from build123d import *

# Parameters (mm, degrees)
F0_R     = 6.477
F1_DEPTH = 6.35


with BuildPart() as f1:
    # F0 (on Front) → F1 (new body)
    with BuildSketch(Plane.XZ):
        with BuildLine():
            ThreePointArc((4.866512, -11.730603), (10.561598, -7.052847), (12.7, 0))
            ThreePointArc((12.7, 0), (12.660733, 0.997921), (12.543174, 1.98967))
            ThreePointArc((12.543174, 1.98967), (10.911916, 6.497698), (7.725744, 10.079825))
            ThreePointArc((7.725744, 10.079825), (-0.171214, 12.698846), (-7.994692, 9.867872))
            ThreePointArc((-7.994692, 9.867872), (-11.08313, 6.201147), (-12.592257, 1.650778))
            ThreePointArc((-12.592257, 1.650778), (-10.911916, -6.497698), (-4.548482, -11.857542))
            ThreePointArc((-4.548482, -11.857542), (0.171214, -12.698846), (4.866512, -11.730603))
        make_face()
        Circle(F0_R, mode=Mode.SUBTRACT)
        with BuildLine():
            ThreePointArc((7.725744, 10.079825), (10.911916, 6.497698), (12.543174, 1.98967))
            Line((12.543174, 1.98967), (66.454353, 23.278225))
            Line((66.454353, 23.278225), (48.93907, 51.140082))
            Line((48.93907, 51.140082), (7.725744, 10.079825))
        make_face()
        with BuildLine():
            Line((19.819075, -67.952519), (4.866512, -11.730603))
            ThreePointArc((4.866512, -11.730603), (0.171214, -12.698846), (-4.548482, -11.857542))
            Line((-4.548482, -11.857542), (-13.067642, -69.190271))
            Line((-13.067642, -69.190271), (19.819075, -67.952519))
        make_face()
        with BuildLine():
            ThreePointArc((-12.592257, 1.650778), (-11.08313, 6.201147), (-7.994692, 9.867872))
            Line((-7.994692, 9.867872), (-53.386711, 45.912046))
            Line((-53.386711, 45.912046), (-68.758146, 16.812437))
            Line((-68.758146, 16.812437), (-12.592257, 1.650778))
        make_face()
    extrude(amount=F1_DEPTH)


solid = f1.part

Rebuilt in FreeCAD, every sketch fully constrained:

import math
import FreeCAD as App
import Part
import Sketcher

V = App.Vector
Q = App.Units.Quantity

doc = App.newDocument("Part")
body = doc.addObject("PartDesign::Body", "Body")

sketch1 = body.newObject("Sketcher::SketchObject", "Sketch")
sketch1.AttachmentSupport = (doc.getObject("XZ_Plane"), [""])
sketch1.MapMode = "FlatFace"
sketch1.addGeometry(Part.ArcOfCircle(Part.Circle(V(0.000002, -0.000001, 0), V(0, 0, 1), 12.699998), math.radians(-67.468593), math.radians(0.000004)), False)
sketch1.addGeometry(Part.ArcOfCircle(Part.Circle(V(0.000077, 0.000006, 0), V(0, 0, 1), 12.699923), math.radians(-0.000028), math.radians(9.013512)), False)
sketch1.addGeometry(Part.LineSegment(V(12.543174, 1.98967, 0), V(66.454353, 23.278225, 0)), False)
sketch1.addGeometry(Part.LineSegment(V(66.454353, 23.278225, 0), V(48.93907, 51.140082, 0)), False)
sketch1.addGeometry(Part.LineSegment(V(48.93907, 51.140082, 0), V(7.725744, 10.079825, 0)), False)
sketch1.addGeometry(Part.ArcOfCircle(Part.Circle(V(0, 0.000002, 0), V(0, 0, 1), 12.699999), math.radians(52.531412), math.radians(129.013491)), False)
sketch1.addGeometry(Part.LineSegment(V(-7.994692, 9.867872, 0), V(-53.386711, 45.912046, 0)), False)
sketch1.addGeometry(Part.LineSegment(V(-53.386711, 45.912046, 0), V(-68.758146, 16.812437, 0)), False)
sketch1.addGeometry(Part.LineSegment(V(-68.758146, 16.812437, 0), V(-12.592257, 1.650778, 0)), False)
sketch1.addGeometry(Part.ArcOfCircle(Part.Circle(V(0.000001, 0.000001, 0), V(0, 0, 1), 12.700001), math.radians(172.531423), math.radians(249.013484)), False)
sketch1.addGeometry(Part.LineSegment(V(-4.548482, -11.857542, 0), V(-13.067642, -69.190271, 0)), False)
sketch1.addGeometry(Part.LineSegment(V(-13.067642, -69.190271, 0), V(19.819075, -67.952519, 0)), False)
sketch1.addGeometry(Part.LineSegment(V(19.819075, -67.952519, 0), V(4.866512, -11.730603, 0)), False)
sketch1.addGeometry(Part.Circle(V(0, 0, 0), V(0, 0, 1), 6.477), False)
sketch1.addConstraint(Sketcher.Constraint("Coincident", 0, 2, 1, 1))
sketch1.addConstraint(Sketcher.Constraint("Coincident", 1, 2, 2, 1))
sketch1.addConstraint(Sketcher.Constraint("Coincident", 2, 2, 3, 1))
sketch1.addConstraint(Sketcher.Constraint("Coincident", 3, 2, 4, 1))
sketch1.addConstraint(Sketcher.Constraint("Coincident", 4, 2, 5, 1))
sketch1.addConstraint(Sketcher.Constraint("Coincident", 5, 2, 6, 1))
sketch1.addConstraint(Sketcher.Constraint("Coincident", 6, 2, 7, 1))
sketch1.addConstraint(Sketcher.Constraint("Coincident", 7, 2, 8, 1))
sketch1.addConstraint(Sketcher.Constraint("Coincident", 8, 2, 9, 1))
sketch1.addConstraint(Sketcher.Constraint("Coincident", 9, 2, 10, 1))
sketch1.addConstraint(Sketcher.Constraint("Coincident", 10, 2, 11, 1))
sketch1.addConstraint(Sketcher.Constraint("Coincident", 11, 2, 12, 1))
sketch1.addConstraint(Sketcher.Constraint("Coincident", 12, 2, 0, 1))
sketch1.addConstraint(Sketcher.Constraint("Coincident", 0, 3, -1, 1))
sketch1.addConstraint(Sketcher.Constraint("Coincident", 5, 3, -1, 1))
sketch1.addConstraint(Sketcher.Constraint("Coincident", 9, 3, -1, 1))
sketch1.addConstraint(Sketcher.Constraint("Coincident", 13, 3, -1, 1))
sketch1.addConstraint(Sketcher.Constraint("PointOnObject", 0, 2, -1))
sketch1.addConstraint(Sketcher.Constraint("Radius", 0, Q("0.4999999 in")))
sketch1.addConstraint(Sketcher.Constraint("Radius", 5, Q("0.4999999 in")))
sketch1.addConstraint(Sketcher.Constraint("Radius", 9, Q("0.5 in")))
sketch1.addConstraint(Sketcher.Constraint("Diameter", 13, Q("0.51 in")))
sketch1.addConstraint(Sketcher.Constraint("Radius", 1, Q("12.699923 mm")))
sketch1.addConstraint(Sketcher.Constraint("DistanceX", 10, 2, 9, 2, Q("0.3354 in")))
sketch1.addConstraint(Sketcher.Constraint("Distance", 3, Q("32.910002 mm")))
sketch1.addConstraint(Sketcher.Constraint("Distance", 11, Q("32.910001 mm")))
sketch1.addConstraint(Sketcher.Constraint("DistanceX", 1, 2, 11, 2, Q("7.275901 mm")))
sketch1.addConstraint(Sketcher.Constraint("Distance", 2, Q("57.96221 mm")))
sketch1.addConstraint(Sketcher.Constraint("Distance", 4, Q("58.176309 mm")))
sketch1.addConstraint(Sketcher.Constraint("Distance", 6, Q("57.962211 mm")))
sketch1.addConstraint(Sketcher.Constraint("Distance", 8, Q("58.17631 mm")))
sketch1.addConstraint(Sketcher.Constraint("Distance", 10, Q("57.962211 mm")))
sketch1.addConstraint(Sketcher.Constraint("Distance", 12, Q("58.176309 mm")))
sketch1.addConstraint(Sketcher.Constraint("DistanceY", -1, 1, 1, 2, Q("1.98967 mm")))
sketch1.addConstraint(Sketcher.Constraint("DistanceX", -1, 1, 3, 2, Q("48.93907 mm")))
sketch1.addConstraint(Sketcher.Constraint("DistanceX", 6, 2, -1, 1, Q("53.386711 mm")))
sketch1.addConstraint(Sketcher.Constraint("DistanceY", -1, 1, 8, 2, Q("1.650778 mm")))
sketch1.addConstraint(Sketcher.Constraint("DistanceX", 10, 2, -1, 1, Q("13.067642 mm")))
sketch1.addConstraint(Sketcher.Constraint("DistanceY", 11, 2, -1, 1, Q("67.952519 mm")))
sketch1.addConstraint(Sketcher.Constraint("DistanceX", 1, 2, 2, 2, Q("53.911179 mm")))
sketch1.addConstraint(Sketcher.Constraint("DistanceX", 5, 2, 5, 3, Q("7.994692 mm")))
sketch1.addConstraint(Sketcher.Constraint("DistanceY", 7, 2, 6, 2, Q("29.099609 mm")))
pad1 = body.newObject("PartDesign::Pad", "Pad")
pad1.Profile = sketch1
pad1.Length = Q("0.25 in")

doc.recompute()
